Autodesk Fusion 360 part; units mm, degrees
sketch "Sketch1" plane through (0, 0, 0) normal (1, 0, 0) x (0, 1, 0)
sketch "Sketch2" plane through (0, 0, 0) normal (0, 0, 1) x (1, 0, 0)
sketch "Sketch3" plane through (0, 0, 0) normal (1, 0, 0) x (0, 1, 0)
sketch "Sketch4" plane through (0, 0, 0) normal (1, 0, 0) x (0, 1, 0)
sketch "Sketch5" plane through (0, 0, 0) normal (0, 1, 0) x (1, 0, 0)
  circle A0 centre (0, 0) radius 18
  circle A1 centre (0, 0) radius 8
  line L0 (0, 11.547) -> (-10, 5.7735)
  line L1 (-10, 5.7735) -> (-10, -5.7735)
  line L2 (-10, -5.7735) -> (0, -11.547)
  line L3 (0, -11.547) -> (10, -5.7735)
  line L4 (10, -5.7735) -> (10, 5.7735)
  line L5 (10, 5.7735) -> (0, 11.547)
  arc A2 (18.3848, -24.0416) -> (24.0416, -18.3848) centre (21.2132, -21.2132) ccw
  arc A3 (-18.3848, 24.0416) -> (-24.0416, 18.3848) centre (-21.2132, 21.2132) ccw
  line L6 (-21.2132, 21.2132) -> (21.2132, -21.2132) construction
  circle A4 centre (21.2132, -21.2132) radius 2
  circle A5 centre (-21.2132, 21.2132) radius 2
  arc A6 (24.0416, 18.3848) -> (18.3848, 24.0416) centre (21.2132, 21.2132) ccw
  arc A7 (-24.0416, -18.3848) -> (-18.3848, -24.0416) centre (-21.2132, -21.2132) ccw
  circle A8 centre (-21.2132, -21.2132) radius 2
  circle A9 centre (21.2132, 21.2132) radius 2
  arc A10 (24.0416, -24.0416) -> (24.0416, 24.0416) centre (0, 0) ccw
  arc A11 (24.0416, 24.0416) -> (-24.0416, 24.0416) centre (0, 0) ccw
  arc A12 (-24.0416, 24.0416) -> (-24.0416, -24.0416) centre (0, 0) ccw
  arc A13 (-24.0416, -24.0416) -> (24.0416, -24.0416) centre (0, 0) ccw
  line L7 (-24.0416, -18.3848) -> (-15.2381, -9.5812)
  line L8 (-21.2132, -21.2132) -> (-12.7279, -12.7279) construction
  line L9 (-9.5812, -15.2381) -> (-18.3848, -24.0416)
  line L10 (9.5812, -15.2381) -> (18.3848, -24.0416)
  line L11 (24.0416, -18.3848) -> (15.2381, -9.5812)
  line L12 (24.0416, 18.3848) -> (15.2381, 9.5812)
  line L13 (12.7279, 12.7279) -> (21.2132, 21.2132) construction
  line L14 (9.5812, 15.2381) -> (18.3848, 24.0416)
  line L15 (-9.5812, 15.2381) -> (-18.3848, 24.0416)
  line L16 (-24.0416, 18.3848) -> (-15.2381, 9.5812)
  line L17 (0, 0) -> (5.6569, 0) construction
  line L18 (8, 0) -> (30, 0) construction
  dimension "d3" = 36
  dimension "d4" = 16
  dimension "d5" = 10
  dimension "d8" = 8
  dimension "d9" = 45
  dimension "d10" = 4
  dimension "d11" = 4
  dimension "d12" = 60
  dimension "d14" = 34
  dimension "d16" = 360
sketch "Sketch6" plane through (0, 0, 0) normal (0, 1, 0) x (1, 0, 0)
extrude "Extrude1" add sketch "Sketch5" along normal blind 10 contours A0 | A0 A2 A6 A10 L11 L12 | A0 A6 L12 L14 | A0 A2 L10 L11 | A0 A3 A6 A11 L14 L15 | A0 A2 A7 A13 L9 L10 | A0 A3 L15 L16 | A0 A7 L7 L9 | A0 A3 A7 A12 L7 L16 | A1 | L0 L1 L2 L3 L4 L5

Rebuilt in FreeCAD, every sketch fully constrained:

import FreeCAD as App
import Part
import Sketcher

doc = App.newDocument("Part")
body = doc.addObject("PartDesign::Body", "Body")

sketch1 = doc.addObject("Sketcher::SketchObject", "Sketch")
body.addObject(sketch1)
sketch1.AttachmentSupport = (doc.XZ_Plane, [""])
sketch1.MapMode = "FlatFace"
sketch1.addGeometry([
    Part.Circle(App.Vector(0, 0, 0), App.Vector(0, 0, 1), 34),
    Part.Circle(App.Vector(21.2, 21.2, 0), App.Vector(0, 0, 1), 2),
    Part.Circle(App.Vector(-21.2, 21.2, 0), App.Vector(0, 0, 1), 2),
    Part.Circle(App.Vector(-21.2, -21.2, 0), App.Vector(0, 0, 1), 2),
    Part.Circle(App.Vector(21.2, -21.2, 0), App.Vector(0, 0, 1), 2),
], False)
sketch1.addConstraint([
    Sketcher.Constraint("Coincident", 0, 3, -1, 1),
    Sketcher.Constraint("Equal", 1, 2),
    Sketcher.Constraint("Equal", 2, 3),
    Sketcher.Constraint("Equal", 3, 4),
    Sketcher.Constraint("Symmetric", 1, 3, 3, 3, -1, 1),
    Sketcher.Constraint("Symmetric", 2, 3, 4, 3, -1, 1),
    Sketcher.Constraint("Symmetric", 1, 3, 2, 3, -2),
    Sketcher.Constraint("Diameter", 0, 68.0),
    Sketcher.Constraint("Diameter", 1, 4.0),
    Sketcher.Constraint("DistanceX", -1, 1, 1, 3, 21.2132),
    Sketcher.Constraint("DistanceY", -1, 1, 1, 3, 21.2132),
])
pad1 = doc.addObject("PartDesign::Pad", "Pad")
body.addObject(pad1)
pad1.Profile = sketch1
pad1.Length = 10
pad1.Reversed = True

doc.recompute()
